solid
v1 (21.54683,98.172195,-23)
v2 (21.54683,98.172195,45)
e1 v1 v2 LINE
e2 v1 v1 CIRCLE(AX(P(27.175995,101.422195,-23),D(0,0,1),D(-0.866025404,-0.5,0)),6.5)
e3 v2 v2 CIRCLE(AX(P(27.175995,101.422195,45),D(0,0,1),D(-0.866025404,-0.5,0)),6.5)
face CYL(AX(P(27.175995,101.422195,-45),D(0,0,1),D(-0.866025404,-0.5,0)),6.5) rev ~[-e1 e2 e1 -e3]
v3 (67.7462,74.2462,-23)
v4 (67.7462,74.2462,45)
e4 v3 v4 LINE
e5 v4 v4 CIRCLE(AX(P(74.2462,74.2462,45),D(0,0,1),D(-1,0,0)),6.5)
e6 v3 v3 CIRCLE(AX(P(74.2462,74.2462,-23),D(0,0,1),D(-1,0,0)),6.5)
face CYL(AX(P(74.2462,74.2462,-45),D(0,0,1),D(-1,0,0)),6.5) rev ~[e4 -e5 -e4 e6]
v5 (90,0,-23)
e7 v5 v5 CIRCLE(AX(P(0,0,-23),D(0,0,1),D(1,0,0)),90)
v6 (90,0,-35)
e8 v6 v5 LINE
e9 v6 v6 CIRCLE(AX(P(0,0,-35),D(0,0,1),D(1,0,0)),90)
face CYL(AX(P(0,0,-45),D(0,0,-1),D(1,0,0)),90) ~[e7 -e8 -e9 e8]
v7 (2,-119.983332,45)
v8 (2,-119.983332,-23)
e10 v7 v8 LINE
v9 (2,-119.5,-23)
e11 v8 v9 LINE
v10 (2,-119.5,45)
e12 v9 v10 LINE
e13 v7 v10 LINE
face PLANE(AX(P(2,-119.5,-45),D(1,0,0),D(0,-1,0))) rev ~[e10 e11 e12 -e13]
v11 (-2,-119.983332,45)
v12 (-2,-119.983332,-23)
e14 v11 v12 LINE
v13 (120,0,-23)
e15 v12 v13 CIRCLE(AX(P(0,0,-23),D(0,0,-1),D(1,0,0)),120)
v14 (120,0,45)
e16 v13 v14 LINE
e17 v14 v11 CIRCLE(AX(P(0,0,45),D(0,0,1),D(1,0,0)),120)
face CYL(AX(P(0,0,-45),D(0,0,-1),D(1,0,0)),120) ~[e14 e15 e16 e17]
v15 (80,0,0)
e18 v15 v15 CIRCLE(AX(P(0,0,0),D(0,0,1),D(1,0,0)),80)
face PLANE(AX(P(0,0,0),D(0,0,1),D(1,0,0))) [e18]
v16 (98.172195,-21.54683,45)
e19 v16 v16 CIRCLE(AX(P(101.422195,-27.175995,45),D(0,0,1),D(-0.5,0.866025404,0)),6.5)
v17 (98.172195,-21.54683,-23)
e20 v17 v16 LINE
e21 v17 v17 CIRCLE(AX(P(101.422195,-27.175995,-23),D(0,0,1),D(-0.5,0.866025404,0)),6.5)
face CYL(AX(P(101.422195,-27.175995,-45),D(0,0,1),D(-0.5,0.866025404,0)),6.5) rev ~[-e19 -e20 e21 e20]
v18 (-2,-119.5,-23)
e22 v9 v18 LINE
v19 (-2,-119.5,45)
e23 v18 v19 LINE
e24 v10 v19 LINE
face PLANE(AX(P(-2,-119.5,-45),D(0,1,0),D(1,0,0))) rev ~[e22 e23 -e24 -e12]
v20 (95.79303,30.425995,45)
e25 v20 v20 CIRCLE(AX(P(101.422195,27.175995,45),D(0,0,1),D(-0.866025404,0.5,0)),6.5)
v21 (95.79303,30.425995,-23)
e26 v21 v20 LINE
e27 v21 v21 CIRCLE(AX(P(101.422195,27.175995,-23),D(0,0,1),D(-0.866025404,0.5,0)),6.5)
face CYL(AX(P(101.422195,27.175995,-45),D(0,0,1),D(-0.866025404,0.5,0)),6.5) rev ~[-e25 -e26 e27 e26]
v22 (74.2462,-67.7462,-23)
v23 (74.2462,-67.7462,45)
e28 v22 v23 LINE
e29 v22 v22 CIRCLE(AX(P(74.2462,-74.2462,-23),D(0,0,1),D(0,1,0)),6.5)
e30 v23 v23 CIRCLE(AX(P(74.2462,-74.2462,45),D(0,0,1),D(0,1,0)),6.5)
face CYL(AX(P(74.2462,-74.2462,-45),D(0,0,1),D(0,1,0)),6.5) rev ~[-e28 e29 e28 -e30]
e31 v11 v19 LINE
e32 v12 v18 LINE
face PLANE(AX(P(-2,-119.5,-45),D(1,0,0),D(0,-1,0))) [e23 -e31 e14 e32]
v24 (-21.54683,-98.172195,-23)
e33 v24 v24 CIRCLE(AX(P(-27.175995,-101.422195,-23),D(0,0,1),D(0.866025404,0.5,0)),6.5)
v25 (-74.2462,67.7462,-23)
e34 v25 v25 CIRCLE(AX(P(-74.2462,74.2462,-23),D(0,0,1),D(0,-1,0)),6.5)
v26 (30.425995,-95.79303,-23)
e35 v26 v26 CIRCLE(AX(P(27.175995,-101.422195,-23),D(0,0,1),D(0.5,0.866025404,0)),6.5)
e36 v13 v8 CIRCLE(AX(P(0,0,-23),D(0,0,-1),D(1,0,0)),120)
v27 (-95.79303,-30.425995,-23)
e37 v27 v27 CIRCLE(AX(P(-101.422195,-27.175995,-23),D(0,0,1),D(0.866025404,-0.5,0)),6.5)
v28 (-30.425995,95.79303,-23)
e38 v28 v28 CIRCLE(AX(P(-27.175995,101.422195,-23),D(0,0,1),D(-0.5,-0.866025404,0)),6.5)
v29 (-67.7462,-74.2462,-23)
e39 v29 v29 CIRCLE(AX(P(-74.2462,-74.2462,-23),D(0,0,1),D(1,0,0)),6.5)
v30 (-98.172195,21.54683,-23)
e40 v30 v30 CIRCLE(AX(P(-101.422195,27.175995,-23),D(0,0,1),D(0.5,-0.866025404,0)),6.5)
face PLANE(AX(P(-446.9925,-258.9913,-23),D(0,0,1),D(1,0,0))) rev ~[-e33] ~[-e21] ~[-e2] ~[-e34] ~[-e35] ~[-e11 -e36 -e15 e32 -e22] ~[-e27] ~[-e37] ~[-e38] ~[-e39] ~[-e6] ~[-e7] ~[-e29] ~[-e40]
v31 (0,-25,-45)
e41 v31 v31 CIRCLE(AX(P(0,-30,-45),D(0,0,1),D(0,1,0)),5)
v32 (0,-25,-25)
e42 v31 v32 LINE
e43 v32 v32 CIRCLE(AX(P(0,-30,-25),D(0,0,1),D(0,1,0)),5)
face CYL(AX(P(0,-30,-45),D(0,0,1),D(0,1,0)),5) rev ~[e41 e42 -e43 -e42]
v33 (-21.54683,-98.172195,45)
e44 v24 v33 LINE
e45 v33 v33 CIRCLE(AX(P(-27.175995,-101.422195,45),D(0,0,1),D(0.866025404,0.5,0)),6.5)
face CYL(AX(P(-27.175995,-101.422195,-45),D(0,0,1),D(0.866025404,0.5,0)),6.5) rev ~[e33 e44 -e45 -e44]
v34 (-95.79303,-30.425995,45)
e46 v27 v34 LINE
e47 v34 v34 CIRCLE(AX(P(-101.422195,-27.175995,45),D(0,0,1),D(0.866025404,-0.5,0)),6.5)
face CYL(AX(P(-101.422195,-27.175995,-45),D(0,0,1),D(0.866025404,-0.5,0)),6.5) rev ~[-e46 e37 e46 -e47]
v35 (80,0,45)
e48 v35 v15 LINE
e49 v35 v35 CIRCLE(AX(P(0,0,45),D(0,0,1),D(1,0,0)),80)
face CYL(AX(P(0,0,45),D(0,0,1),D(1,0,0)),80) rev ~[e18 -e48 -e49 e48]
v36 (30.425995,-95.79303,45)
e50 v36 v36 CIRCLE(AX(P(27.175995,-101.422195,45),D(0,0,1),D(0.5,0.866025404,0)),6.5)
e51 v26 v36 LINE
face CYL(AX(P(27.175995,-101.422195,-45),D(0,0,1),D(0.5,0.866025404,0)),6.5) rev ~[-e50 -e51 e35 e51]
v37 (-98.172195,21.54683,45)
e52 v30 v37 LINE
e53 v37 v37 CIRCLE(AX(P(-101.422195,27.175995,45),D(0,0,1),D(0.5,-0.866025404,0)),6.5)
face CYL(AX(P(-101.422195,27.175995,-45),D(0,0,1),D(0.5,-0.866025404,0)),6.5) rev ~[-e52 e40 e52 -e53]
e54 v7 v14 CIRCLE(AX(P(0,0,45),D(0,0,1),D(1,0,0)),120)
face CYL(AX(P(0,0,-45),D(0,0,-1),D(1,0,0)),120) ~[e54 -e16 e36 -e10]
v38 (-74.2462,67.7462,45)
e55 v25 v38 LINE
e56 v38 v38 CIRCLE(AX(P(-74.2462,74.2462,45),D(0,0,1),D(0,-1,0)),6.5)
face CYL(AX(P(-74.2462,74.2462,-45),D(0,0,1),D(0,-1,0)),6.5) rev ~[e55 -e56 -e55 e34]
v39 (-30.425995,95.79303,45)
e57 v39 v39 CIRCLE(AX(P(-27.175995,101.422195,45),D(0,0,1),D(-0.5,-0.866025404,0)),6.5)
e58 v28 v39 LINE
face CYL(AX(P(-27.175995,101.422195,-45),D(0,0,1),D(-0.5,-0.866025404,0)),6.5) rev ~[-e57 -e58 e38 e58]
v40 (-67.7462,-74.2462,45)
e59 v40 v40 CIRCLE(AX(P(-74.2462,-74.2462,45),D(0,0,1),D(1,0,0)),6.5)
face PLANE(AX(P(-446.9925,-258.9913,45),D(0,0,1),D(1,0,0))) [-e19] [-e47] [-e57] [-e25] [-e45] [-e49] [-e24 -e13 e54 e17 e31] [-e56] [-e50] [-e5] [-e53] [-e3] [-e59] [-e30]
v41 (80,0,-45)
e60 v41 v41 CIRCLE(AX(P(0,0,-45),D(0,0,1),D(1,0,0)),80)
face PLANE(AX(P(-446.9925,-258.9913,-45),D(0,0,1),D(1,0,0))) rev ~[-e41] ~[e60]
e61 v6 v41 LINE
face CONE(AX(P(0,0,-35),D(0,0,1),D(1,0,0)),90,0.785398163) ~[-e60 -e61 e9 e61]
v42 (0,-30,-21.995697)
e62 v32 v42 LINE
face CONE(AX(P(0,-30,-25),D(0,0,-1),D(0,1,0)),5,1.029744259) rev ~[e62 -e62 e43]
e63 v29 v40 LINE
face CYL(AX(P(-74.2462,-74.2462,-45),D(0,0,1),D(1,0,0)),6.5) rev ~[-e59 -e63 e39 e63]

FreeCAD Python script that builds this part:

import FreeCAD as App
import Part
import Sketcher

V = App.Vector
Q = App.Units.Quantity


def edges_at(feature, points):
    """Names of the edges that pass closest to the given points."""
    edges = feature.Shape.Edges
    near = lambda p: min(range(len(edges)), key=lambda i: edges[i].distToShape(Part.Vertex(*p))[0])
    return sorted({f"Edge{near(p) + 1}" for p in points})

doc = App.newDocument("Part")
body = doc.addObject("PartDesign::Body", "Body")

# Sketch on XY plane
sketch1 = body.newObject("Sketcher::SketchObject", "Sketch")
sketch1.AttachmentSupport = (doc.getObject("XY_Plane"), [""])
sketch1.MapMode = "FlatFace"
sketch1.AttachmentOffset = App.Placement(V(0, 0, -45), App.Rotation())
sketch1.addGeometry(Part.Circle(V(0, 0, 0), V(0, 0, 1), 120), False)
sketch1.addConstraint([
    Sketcher.Constraint("Coincident", 0, 3, -1, 1),
    Sketcher.Constraint("Diameter", 0, Q("240 mm")),
])
pad1 = body.newObject("PartDesign::Pad", "Pad")
pad1.Profile = sketch1
pad1.Length = 90

# Sketch on XY plane
sketch2 = body.newObject("Sketcher::SketchObject", "Sketch001")
sketch2.AttachmentSupport = (doc.getObject("XY_Plane"), [""])
sketch2.MapMode = "FlatFace"
sketch2.AttachmentOffset = App.Placement(V(0, 0, -45), App.Rotation())
sketch2.addGeometry([
    Part.Circle(V(0, 0, 0), V(0, 0, 1), 144),
    Part.Circle(V(0, 0, 0), V(0, 0, 1), 90),
], False)
sketch2.addConstraint([
    Sketcher.Constraint("Coincident", 0, 3, -1, 1),
    Sketcher.Constraint("Coincident", 1, 3, -1, 1),
    Sketcher.Constraint("Diameter", 1, Q("180 mm")),
    Sketcher.Constraint("Diameter", 0, Q("287.8334 mm")),
])
pocket1 = body.newObject("PartDesign::Pocket", "Pocket")
pocket1.Profile = sketch2
pocket1.Length = 22
pocket1.Reversed = True

# Sketch on XY plane
sketch3 = body.newObject("Sketcher::SketchObject", "Sketch002")
sketch3.AttachmentSupport = (doc.getObject("XY_Plane"), [""])
sketch3.MapMode = "FlatFace"
sketch3.AttachmentOffset = App.Placement(V(0, 0, -45), App.Rotation())
sketch3.addGeometry(Part.Circle(V(74, -74, 0), V(0, 0, 1), 6), False)
sketch3.addConstraint([
    Sketcher.Constraint("Diameter", 0, Q("13 mm")),
    Sketcher.Constraint("DistanceX", -1, 1, 0, 3, Q("74.2462 mm")),
    Sketcher.Constraint("DistanceY", 0, 3, -1, 1, Q("74.2462 mm")),
])
doc.recompute()
hole = body.newObject("PartDesign::Hole", "Hole")
hole.Profile = sketch3
hole.ThreadType = "None"
hole.Diameter = 13
hole.DepthType = "ThroughAll"
hole.Reversed = True
doc.recompute()

polarpattern = body.newObject("PartDesign::PolarPattern", "PolarPattern")
polarpattern.Originals = [hole]
polarpattern.Axis = (doc.getObject("Z_Axis"), [""])
polarpattern.Angle = 360
polarpattern.Occurrences = 12
body.Tip = polarpattern

# Sketch on XY plane
sketch4 = body.newObject("Sketcher::SketchObject", "Sketch003")
sketch4.AttachmentSupport = (doc.getObject("XY_Plane"), [""])
sketch4.MapMode = "FlatFace"
sketch4.AttachmentOffset = App.Placement(V(0, 0, 45), App.Rotation())
sketch4.addGeometry(Part.Circle(V(0, 0, 0), V(0, 0, 1), 80), False)
sketch4.addConstraint([
    Sketcher.Constraint("Coincident", 0, 3, -1, 1),
    Sketcher.Constraint("Diameter", 0, Q("160 mm")),
])
pocket2 = body.newObject("PartDesign::Pocket", "Pocket001")
pocket2.Profile = sketch4
pocket2.Length = 45
doc.recompute()

chamfer = body.newObject("PartDesign::Chamfer", "Chamfer")
chamfer.Base = (pocket2, edges_at(pocket2, [(-90, 0, -45)]))
chamfer.Size = 10

# Sketch on XY plane
sketch5 = body.newObject("Sketcher::SketchObject", "Sketch004")
sketch5.AttachmentSupport = (doc.getObject("XY_Plane"), [""])
sketch5.MapMode = "FlatFace"
sketch5.AttachmentOffset = App.Placement(V(0, 0, -45), App.Rotation())
sketch5.addGeometry(Part.Circle(V(0, -30, 0), V(0, 0, 1), 5), False)
sketch5.addConstraint([
    Sketcher.Constraint("PointOnObject", 0, 3, -2),
    Sketcher.Constraint("Diameter", 0, Q("10 mm")),
    Sketcher.Constraint("DistanceY", 0, 3, -1, 1, Q("30 mm")),
])
doc.recompute()
hole2 = body.newObject("PartDesign::Hole", "Hole001")
hole2.Profile = sketch5
hole2.ThreadType = "None"
hole2.Diameter = 10
hole2.DepthType = "Dimension"
hole2.Depth = 20
hole2.DrillPoint = "Angled"
hole2.DrillPointAngle = 118
hole2.Reversed = True

# Sketch on XY plane
sketch6 = body.newObject("Sketcher::SketchObject", "Sketch005")
sketch6.AttachmentSupport = (doc.getObject("XY_Plane"), [""])
sketch6.MapMode = "FlatFace"
sketch6.AttachmentOffset = App.Placement(V(0, 0, -45), App.Rotation())
sketch6.addGeometry([
    Part.LineSegment(V(-2, -119.5, 0), V(2, -119.5, 0)),
    Part.LineSegment(V(2, -119.5, 0), V(2, -141.5, 0)),
    Part.LineSegment(V(2, -141.5, 0), V(-2, -141.5, 0)),
    Part.LineSegment(V(-2, -141.5, 0), V(-2, -119.5, 0)),
], False)
sketch6.addConstraint([
    Sketcher.Constraint("Coincident", 0, 2, 1, 1),
    Sketcher.Constraint("Coincident", 1, 2, 2, 1),
    Sketcher.Constraint("Coincident", 2, 2, 3, 1),
    Sketcher.Constraint("Coincident", 3, 2, 0, 1),
    Sketcher.Constraint("Horizontal", 0),
    Sketcher.Constraint("Vertical", 1),
    Sketcher.Constraint("Horizontal", 2),
    Sketcher.Constraint("Vertical", 3),
    Sketcher.Constraint("DistanceX", 0, 1, 0, 2, Q("4 mm")),
    Sketcher.Constraint("DistanceY", 1, 2, 1, 1, Q("21.9896 mm")),
    Sketcher.Constraint("DistanceX", -1, 1, 0, 2, Q("2 mm")),
    Sketcher.Constraint("DistanceY", 0, 2, -1, 1, Q("119.5 mm")),
])
pocket3 = body.newObject("PartDesign::Pocket", "Pocket002")
pocket3.Profile = sketch6
pocket3.Type = "ThroughAll"
pocket3.Reversed = True

doc.recompute()
